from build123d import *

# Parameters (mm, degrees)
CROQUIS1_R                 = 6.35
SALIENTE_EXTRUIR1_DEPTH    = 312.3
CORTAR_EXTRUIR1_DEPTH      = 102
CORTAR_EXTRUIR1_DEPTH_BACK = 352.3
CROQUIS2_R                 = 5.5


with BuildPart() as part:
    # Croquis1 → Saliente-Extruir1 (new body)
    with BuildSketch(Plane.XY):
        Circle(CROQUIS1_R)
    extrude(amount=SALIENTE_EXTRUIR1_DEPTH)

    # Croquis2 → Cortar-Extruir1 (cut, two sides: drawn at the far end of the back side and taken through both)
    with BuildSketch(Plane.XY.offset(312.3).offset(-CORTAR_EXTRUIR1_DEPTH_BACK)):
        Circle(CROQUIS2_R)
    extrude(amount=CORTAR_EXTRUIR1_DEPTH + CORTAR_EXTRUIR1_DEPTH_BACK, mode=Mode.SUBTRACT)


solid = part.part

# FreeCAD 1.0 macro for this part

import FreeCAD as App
import Part
import Sketcher

doc = App.newDocument("Part")
params = doc.addObject("Spreadsheet::Sheet", "Params")
for row, (alias, value) in enumerate([
    ("sketch1_diameter", "12.7 mm"),
    ("pad1_length", "312.3 mm"),
    ("sketch2_diameter", "11 mm"),
], start=1):
    params.set(f"A{row}", alias)
    params.set(f"B{row}", "=" + value)
    params.setAlias(f"B{row}", alias)

body = doc.addObject("PartDesign::Body", "Body")

sketch1 = body.newObject("Sketcher::SketchObject", "Sketch")
sketch1.AttachmentSupport = (doc.getObject("XY_Plane"), [""])
sketch1.MapMode = "FlatFace"
sketch1.addGeometry(Part.Circle(App.Vector(0, 0, 0), App.Vector(0, 0, 1), 6.35), False)
sketch1.addConstraint(Sketcher.Constraint("Coincident", 0, 3, -1, 1))
sketch1.addConstraint(Sketcher.Constraint("Diameter", 0, 12.7))
sketch1.setExpression("Constraints[1]", "Params.sketch1_diameter")
pad1 = body.newObject("PartDesign::Pad", "Pad")
pad1.Profile = sketch1
pad1.setExpression("Length", "Params.pad1_length")

sketch2 = body.newObject("Sketcher::SketchObject", "Sketch001")
sketch2.AttachmentSupport = (doc.getObject("XY_Plane"), [""])
sketch2.MapMode = "FlatFace"
sketch2.AttachmentOffset = App.Placement(App.Vector(0, 0, 312.3), App.Rotation())
sketch2.addGeometry(Part.Circle(App.Vector(0, 0, 0), App.Vector(0, 0, 1), 5.5), False)
sketch2.addConstraint(Sketcher.Constraint("Coincident", 0, 3, -1, 1))
sketch2.addConstraint(Sketcher.Constraint("Diameter", 0, 11.0))
sketch2.setExpression("Constraints[1]", "Params.sketch2_diameter")
pocket1 = body.newObject("PartDesign::Pocket", "Pocket")
pocket1.Profile = sketch2
pocket1.Type = "ThroughAll"
pocket1.Midplane = True

doc.recompute()
